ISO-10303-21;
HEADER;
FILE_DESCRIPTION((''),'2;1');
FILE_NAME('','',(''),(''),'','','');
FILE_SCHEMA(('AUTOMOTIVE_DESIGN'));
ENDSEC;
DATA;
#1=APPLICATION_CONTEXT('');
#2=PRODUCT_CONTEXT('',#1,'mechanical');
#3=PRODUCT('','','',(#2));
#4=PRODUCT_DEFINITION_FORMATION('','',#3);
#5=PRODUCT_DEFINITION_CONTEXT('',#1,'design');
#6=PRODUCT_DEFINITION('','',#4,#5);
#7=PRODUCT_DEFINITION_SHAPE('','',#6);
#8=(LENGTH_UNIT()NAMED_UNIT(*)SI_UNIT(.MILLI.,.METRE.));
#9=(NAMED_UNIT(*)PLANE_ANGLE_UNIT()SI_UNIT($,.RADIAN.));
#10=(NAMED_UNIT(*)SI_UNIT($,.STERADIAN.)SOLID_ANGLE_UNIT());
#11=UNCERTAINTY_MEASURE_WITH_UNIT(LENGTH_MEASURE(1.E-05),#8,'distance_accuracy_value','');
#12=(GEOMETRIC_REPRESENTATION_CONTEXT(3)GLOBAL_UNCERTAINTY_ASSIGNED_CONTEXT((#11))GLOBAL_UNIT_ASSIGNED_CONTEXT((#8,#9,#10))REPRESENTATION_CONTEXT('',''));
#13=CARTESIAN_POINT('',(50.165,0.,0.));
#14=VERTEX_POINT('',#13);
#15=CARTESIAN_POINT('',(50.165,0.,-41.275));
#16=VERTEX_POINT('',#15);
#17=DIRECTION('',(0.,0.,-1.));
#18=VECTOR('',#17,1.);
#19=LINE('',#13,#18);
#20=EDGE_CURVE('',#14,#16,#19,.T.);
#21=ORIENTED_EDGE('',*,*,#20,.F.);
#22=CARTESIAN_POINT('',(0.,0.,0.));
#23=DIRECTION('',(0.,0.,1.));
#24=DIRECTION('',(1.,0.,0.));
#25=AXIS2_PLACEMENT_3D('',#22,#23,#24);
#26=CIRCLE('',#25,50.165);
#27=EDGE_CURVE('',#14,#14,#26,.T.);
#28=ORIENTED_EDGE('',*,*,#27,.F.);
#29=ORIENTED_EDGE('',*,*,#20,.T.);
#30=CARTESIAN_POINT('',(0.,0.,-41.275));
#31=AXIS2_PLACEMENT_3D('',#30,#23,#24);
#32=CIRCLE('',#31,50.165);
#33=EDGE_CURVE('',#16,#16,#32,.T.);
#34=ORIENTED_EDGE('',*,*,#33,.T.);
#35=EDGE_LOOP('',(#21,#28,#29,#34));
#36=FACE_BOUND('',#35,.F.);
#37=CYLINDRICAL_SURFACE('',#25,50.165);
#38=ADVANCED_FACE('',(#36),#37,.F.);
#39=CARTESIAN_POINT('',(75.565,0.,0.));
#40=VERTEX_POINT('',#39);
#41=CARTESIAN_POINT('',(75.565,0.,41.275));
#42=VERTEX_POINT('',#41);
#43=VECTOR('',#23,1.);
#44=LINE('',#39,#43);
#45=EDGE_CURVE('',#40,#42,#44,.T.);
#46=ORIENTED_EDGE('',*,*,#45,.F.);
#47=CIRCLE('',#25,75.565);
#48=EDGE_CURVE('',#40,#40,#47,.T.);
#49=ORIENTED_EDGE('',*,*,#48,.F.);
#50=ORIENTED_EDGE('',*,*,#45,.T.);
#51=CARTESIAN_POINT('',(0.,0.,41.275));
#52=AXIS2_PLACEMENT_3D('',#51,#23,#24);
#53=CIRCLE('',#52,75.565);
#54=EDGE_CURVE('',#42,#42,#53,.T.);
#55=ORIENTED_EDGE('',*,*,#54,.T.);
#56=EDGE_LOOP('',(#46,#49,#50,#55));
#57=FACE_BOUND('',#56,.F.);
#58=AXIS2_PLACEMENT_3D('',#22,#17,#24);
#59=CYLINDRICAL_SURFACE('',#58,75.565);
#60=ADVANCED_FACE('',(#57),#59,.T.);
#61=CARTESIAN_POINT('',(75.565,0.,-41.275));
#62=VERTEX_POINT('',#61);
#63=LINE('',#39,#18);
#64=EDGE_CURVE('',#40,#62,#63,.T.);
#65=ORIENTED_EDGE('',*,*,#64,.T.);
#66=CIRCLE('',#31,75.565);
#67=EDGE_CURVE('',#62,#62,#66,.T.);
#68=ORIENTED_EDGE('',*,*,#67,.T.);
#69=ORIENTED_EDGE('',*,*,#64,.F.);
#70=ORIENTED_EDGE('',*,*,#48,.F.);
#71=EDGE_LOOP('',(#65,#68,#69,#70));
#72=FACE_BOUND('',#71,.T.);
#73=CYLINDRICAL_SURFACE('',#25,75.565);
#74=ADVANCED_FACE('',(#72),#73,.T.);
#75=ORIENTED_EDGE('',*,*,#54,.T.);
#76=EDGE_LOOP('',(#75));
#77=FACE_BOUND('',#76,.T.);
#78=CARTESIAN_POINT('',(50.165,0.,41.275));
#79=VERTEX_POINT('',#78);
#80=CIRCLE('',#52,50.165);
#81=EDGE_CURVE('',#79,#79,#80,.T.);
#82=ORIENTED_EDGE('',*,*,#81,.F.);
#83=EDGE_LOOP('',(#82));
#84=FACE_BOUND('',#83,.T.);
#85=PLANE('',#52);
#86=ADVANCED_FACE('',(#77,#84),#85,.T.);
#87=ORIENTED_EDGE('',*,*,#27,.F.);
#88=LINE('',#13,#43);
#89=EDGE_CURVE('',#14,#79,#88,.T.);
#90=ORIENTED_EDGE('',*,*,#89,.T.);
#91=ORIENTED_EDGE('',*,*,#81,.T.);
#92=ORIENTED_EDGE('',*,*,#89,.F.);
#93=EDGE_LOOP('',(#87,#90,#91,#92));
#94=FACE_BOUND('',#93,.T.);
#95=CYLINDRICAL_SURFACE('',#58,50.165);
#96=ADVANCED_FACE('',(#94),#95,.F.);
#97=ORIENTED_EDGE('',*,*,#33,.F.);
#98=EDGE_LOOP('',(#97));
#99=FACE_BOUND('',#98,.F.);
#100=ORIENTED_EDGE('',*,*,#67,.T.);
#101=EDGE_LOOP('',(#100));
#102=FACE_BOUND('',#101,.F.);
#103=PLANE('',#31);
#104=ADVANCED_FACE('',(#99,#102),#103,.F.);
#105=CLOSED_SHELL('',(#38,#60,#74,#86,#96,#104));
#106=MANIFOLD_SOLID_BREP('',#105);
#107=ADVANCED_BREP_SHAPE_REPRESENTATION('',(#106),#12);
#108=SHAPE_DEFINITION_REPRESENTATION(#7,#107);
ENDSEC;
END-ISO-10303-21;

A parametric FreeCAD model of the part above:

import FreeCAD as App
import Part
import Sketcher
from FreeCAD import Vector
Q = App.Units.Quantity

doc = App.newDocument("Part")
body = doc.addObject("PartDesign::Body", "Body")

# Sketch on XY plane
sketch1 = body.newObject("Sketcher::SketchObject", "Sketch")
sketch1.AttachmentSupport = (doc.getObject("XY_Plane"), [""])
sketch1.MapMode = "FlatFace"
sketch1.addGeometry([
    Part.Circle(Vector(0, 0, 0), Vector(0, 0, 1), 75.565),
    Part.Circle(Vector(0, 0, 0), Vector(0, 0, 1), 50.165),
], False)
sketch1.addConstraint([
    Sketcher.Constraint("Coincident", 0, 3, -1, 1),
    Sketcher.Constraint("Coincident", 1, 3, -1, 1),
    Sketcher.Constraint("Diameter", 0, Q("5.95 in")),
    Sketcher.Constraint("Diameter", 1, Q("3.95 in")),
])
pad1 = body.newObject("PartDesign::Pad", "Pad")
pad1.Profile = sketch1
pad1.Length = Q("3.25 in")
pad1.Midplane = True

doc.recompute()
